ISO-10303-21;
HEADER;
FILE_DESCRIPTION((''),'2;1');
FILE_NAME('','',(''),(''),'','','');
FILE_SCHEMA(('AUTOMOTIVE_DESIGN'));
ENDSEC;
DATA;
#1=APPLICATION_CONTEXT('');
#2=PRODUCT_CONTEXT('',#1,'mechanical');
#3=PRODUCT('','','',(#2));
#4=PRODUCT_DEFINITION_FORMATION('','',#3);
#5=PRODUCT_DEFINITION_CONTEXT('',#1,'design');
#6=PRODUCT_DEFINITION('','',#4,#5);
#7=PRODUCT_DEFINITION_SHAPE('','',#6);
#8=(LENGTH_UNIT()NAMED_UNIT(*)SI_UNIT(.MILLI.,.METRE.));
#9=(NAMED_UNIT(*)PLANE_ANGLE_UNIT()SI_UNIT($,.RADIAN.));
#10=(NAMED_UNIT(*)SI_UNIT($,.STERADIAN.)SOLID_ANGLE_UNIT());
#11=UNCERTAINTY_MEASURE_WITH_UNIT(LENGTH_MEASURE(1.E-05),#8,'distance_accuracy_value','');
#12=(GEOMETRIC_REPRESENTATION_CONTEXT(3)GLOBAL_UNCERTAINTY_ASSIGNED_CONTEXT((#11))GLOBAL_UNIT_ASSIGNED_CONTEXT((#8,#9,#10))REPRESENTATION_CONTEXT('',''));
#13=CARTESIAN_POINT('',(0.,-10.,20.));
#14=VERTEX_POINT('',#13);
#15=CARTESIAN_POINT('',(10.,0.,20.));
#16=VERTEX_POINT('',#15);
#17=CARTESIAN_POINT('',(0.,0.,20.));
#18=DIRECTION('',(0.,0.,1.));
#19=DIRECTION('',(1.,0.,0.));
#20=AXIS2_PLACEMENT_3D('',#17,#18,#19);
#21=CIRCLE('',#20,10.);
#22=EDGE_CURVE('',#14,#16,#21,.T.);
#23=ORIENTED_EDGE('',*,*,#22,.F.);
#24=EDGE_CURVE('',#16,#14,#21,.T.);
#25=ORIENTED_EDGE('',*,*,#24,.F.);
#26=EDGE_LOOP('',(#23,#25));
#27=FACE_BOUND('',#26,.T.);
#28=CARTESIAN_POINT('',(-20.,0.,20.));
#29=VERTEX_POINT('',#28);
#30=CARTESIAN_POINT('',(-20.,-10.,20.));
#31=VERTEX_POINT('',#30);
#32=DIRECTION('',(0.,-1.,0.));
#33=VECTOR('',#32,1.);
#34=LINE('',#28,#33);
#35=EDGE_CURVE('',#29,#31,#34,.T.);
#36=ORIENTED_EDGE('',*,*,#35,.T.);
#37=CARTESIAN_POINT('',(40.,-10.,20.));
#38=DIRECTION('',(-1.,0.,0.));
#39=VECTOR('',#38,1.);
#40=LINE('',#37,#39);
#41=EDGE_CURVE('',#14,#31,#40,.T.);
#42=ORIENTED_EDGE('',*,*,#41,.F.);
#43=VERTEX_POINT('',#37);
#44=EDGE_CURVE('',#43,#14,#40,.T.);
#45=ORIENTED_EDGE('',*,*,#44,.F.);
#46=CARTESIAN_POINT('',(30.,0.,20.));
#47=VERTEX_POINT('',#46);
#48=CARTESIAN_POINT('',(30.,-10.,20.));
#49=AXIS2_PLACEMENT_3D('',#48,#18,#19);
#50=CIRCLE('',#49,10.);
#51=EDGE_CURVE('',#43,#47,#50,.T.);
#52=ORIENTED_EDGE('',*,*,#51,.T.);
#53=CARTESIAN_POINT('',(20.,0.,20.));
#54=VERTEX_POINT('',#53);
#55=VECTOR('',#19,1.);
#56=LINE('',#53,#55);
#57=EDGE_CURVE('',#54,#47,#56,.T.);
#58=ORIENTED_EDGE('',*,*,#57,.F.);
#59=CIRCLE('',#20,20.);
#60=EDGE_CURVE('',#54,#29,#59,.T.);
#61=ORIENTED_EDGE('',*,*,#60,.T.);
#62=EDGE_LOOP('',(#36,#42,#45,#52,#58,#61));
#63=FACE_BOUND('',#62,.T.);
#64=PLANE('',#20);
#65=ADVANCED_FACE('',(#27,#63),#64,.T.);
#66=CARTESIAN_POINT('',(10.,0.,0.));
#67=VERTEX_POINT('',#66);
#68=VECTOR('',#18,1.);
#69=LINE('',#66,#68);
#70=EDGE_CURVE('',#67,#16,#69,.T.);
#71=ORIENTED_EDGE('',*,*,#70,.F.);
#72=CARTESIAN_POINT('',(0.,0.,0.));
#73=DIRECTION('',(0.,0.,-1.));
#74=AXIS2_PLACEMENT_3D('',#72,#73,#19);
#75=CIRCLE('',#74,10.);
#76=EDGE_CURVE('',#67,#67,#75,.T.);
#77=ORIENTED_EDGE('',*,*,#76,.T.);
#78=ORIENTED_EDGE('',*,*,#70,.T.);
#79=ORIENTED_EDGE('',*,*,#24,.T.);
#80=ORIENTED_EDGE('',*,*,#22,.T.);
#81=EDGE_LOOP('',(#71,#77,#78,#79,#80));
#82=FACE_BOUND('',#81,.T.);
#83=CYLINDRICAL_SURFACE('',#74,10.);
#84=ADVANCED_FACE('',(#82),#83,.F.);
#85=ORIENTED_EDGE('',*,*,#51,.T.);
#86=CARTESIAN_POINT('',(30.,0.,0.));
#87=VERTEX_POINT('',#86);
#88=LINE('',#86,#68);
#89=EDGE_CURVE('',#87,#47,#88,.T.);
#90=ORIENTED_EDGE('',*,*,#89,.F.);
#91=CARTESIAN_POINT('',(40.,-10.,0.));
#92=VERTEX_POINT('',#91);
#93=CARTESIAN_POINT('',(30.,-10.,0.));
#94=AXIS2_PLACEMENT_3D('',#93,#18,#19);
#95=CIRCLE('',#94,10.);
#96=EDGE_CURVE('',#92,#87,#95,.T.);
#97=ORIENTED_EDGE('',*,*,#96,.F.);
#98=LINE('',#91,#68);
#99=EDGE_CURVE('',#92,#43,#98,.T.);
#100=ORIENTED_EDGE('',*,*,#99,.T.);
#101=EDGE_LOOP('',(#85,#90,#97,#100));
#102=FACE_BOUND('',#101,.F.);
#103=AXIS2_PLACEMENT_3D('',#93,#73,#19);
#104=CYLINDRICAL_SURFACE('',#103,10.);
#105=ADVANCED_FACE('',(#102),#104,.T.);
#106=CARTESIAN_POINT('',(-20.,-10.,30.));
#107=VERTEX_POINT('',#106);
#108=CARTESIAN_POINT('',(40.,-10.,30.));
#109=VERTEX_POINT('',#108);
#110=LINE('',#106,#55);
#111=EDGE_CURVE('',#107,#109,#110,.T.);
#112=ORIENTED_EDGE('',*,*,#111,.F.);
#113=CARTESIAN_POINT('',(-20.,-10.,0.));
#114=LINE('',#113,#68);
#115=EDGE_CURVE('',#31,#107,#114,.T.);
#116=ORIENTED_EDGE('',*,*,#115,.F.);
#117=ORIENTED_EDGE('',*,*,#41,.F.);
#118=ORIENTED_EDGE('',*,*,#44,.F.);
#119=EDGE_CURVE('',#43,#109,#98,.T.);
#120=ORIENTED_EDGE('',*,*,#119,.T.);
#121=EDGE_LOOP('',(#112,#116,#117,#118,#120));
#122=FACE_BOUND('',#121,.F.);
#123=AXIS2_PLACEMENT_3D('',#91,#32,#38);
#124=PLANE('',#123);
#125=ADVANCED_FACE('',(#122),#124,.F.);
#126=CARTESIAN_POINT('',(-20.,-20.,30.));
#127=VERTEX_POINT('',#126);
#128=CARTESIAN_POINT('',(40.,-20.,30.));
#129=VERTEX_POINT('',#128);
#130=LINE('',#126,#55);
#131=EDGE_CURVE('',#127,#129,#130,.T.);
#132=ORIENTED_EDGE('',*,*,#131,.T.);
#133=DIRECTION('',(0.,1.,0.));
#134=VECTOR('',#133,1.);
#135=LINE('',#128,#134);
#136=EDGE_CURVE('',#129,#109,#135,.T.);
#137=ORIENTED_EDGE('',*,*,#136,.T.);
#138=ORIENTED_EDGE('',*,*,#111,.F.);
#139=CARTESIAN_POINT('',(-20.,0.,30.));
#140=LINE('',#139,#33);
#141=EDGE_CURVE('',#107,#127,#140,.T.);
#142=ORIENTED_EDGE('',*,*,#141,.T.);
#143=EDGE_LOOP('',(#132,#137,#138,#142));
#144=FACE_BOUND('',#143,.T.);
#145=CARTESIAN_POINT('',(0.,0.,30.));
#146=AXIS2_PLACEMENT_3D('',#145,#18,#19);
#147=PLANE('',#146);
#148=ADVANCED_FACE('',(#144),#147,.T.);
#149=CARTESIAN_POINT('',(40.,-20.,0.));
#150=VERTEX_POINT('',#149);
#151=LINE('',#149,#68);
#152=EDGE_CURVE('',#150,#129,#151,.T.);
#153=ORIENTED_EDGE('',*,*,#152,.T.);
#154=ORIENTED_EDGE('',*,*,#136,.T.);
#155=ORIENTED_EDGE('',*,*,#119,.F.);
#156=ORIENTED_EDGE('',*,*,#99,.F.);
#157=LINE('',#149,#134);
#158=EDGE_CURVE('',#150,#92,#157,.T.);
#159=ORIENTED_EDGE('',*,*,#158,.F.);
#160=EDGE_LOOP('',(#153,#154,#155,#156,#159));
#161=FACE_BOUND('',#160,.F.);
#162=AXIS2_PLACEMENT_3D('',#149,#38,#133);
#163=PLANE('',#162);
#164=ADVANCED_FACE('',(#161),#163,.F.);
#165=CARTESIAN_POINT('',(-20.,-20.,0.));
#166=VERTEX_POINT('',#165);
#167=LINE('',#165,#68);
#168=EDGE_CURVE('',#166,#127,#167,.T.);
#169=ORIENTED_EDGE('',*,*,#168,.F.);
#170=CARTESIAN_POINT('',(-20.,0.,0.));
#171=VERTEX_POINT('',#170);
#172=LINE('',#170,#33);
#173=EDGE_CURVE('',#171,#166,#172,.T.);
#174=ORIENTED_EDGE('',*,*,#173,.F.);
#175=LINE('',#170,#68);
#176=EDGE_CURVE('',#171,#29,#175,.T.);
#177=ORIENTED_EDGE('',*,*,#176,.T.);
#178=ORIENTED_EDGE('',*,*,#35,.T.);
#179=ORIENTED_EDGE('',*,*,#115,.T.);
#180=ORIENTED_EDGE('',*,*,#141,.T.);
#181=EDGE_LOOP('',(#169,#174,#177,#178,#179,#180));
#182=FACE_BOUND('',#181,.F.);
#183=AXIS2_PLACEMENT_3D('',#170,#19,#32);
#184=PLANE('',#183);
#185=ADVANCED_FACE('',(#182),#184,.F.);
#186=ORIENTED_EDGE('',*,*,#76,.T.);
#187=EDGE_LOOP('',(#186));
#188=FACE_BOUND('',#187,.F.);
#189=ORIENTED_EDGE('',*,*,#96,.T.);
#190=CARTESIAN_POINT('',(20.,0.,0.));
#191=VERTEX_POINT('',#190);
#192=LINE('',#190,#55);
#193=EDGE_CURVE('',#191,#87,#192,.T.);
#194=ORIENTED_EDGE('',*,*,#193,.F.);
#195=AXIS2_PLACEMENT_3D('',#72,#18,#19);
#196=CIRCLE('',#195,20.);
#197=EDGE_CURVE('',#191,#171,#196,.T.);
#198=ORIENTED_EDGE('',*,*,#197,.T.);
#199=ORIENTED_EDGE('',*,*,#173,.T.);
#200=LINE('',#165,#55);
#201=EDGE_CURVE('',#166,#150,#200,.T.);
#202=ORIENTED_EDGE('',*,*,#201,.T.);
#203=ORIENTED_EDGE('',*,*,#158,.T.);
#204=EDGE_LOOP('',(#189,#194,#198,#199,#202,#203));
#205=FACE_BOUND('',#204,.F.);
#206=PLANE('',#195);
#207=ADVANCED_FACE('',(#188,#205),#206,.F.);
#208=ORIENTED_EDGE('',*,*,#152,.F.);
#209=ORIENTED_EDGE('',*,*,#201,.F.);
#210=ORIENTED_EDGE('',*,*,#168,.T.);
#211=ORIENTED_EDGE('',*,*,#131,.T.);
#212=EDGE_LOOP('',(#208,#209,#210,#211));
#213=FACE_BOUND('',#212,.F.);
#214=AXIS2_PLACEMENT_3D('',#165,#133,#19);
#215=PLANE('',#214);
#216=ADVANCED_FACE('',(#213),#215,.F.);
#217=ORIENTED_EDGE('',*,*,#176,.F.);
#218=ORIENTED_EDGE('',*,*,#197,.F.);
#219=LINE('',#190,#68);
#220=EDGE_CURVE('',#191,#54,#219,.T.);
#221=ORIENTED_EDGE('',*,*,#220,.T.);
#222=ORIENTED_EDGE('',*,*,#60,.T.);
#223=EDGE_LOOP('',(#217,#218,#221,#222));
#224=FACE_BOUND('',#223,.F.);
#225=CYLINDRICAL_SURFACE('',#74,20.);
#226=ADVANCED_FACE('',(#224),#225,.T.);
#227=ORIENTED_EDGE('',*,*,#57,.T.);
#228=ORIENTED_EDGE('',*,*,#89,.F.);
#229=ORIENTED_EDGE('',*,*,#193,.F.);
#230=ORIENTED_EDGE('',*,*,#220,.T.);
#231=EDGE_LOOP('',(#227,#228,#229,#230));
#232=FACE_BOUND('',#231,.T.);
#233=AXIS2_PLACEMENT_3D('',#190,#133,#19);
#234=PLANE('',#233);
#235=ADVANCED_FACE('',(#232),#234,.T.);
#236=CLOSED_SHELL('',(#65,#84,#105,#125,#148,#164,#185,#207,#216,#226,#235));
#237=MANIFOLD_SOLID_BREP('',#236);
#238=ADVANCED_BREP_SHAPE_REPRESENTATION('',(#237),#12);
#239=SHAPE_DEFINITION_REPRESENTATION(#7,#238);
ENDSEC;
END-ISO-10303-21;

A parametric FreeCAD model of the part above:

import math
import FreeCAD as App
import Part
import Sketcher
from FreeCAD import Vector


def add_polygon(sketch, points):
    """Adds a closed chain of lines whose ends are joined by coincident constraints."""
    first, n = sketch.GeometryCount, len(points)
    for a, b in zip(points, points[1:] + points[:1]):
        sketch.addGeometry(Part.LineSegment(App.Vector(*a, 0), App.Vector(*b, 0)), False)
    for i in range(n):
        sketch.addConstraint(Sketcher.Constraint("Coincident", first + i, 2, first + (i + 1) % n, 1))

doc = App.newDocument("Part")
body = doc.addObject("PartDesign::Body", "Body")

# Sketch on XY plane
sketch1 = doc.addObject("Sketcher::SketchObject", "Sketch")
body.addObject(sketch1)
sketch1.AttachmentSupport = (doc.XY_Plane, [""])
sketch1.MapMode = "FlatFace"
add_polygon(sketch1, [(40, -10), (-20, -10), (-20, -20), (40, -20)])  # lines 0-3
sketch1.addConstraint([
    Sketcher.Constraint("Horizontal", 0),
    Sketcher.Constraint("Vertical", 1),
    Sketcher.Constraint("Horizontal", 2),
    Sketcher.Constraint("Vertical", 3),
    Sketcher.Constraint("DistanceX", 0, 2, 0, 1, 60.0),
    Sketcher.Constraint("DistanceY", 1, 2, 1, 1, 10.0),
    Sketcher.Constraint("DistanceX", 0, 2, -1, 1, 20.0),
    Sketcher.Constraint("DistanceY", 0, 2, -1, 1, 10.0),
])
pad1 = doc.addObject("PartDesign::Pad", "Pad")
body.addObject(pad1)
pad1.Profile = sketch1
pad1.Length = 30

# Sketch on XY plane
sketch2 = doc.addObject("Sketcher::SketchObject", "Sketch001")
body.addObject(sketch2)
sketch2.AttachmentSupport = (doc.XY_Plane, [""])
sketch2.MapMode = "FlatFace"
sketch2.addGeometry([
    Part.LineSegment(Vector(-20, -10, 0), Vector(0, -10, 0)),  # 0
    Part.LineSegment(Vector(0, -10, 0), Vector(40, -10, 0)),  # 1
    Part.ArcOfCircle(Part.Circle(Vector(30, -10, 0), Vector(0, 0, 1), 10), math.radians(0), math.radians(90)),  # 2
    Part.LineSegment(Vector(30, 0, 0), Vector(20, 0, 0)),  # 3
    Part.ArcOfCircle(Part.Circle(Vector(0, 0, 0), Vector(0, 0, 1), 20), math.radians(0), math.radians(180)),  # 4
    Part.LineSegment(Vector(-20, 0, 0), Vector(-20, -10, 0)),  # 5
    Part.Circle(Vector(0, 0, 0), Vector(0, 0, 1), 10),  # 6
], False)
sketch2.addConstraint([
    Sketcher.Constraint("Coincident", 0, 2, 1, 1),
    Sketcher.Constraint("Coincident", 1, 2, 2, 1),
    Sketcher.Constraint("Tangent", 2, 2, 3, 1),
    Sketcher.Constraint("Coincident", 3, 2, 4, 1),
    Sketcher.Constraint("Tangent", 4, 2, 5, 1),
    Sketcher.Constraint("Coincident", 5, 2, 0, 1),
    Sketcher.Constraint("Horizontal", 0),
    Sketcher.Constraint("Horizontal", 1),
    Sketcher.Constraint("Horizontal", 3),
    Sketcher.Constraint("Vertical", 5),
    Sketcher.Constraint("Coincident", 4, 3, -1, 1),
    Sketcher.Constraint("Coincident", 6, 3, -1, 1),
    Sketcher.Constraint("Equal", 2, 6),
    Sketcher.Constraint("PointOnObject", 0, 2, -2),
    Sketcher.Constraint("PointOnObject", 2, 2, -1),
    Sketcher.Constraint("Horizontal", 2, 3, 0, 2),
    Sketcher.Constraint("Equal", 3, 5),
    Sketcher.Constraint("Diameter", 6, 20.0),
    Sketcher.Constraint("Radius", 4, 20.0),
])
pad2 = doc.addObject("PartDesign::Pad", "Pad001")
body.addObject(pad2)
pad2.Profile = sketch2
pad2.Length = 20

doc.recompute()
